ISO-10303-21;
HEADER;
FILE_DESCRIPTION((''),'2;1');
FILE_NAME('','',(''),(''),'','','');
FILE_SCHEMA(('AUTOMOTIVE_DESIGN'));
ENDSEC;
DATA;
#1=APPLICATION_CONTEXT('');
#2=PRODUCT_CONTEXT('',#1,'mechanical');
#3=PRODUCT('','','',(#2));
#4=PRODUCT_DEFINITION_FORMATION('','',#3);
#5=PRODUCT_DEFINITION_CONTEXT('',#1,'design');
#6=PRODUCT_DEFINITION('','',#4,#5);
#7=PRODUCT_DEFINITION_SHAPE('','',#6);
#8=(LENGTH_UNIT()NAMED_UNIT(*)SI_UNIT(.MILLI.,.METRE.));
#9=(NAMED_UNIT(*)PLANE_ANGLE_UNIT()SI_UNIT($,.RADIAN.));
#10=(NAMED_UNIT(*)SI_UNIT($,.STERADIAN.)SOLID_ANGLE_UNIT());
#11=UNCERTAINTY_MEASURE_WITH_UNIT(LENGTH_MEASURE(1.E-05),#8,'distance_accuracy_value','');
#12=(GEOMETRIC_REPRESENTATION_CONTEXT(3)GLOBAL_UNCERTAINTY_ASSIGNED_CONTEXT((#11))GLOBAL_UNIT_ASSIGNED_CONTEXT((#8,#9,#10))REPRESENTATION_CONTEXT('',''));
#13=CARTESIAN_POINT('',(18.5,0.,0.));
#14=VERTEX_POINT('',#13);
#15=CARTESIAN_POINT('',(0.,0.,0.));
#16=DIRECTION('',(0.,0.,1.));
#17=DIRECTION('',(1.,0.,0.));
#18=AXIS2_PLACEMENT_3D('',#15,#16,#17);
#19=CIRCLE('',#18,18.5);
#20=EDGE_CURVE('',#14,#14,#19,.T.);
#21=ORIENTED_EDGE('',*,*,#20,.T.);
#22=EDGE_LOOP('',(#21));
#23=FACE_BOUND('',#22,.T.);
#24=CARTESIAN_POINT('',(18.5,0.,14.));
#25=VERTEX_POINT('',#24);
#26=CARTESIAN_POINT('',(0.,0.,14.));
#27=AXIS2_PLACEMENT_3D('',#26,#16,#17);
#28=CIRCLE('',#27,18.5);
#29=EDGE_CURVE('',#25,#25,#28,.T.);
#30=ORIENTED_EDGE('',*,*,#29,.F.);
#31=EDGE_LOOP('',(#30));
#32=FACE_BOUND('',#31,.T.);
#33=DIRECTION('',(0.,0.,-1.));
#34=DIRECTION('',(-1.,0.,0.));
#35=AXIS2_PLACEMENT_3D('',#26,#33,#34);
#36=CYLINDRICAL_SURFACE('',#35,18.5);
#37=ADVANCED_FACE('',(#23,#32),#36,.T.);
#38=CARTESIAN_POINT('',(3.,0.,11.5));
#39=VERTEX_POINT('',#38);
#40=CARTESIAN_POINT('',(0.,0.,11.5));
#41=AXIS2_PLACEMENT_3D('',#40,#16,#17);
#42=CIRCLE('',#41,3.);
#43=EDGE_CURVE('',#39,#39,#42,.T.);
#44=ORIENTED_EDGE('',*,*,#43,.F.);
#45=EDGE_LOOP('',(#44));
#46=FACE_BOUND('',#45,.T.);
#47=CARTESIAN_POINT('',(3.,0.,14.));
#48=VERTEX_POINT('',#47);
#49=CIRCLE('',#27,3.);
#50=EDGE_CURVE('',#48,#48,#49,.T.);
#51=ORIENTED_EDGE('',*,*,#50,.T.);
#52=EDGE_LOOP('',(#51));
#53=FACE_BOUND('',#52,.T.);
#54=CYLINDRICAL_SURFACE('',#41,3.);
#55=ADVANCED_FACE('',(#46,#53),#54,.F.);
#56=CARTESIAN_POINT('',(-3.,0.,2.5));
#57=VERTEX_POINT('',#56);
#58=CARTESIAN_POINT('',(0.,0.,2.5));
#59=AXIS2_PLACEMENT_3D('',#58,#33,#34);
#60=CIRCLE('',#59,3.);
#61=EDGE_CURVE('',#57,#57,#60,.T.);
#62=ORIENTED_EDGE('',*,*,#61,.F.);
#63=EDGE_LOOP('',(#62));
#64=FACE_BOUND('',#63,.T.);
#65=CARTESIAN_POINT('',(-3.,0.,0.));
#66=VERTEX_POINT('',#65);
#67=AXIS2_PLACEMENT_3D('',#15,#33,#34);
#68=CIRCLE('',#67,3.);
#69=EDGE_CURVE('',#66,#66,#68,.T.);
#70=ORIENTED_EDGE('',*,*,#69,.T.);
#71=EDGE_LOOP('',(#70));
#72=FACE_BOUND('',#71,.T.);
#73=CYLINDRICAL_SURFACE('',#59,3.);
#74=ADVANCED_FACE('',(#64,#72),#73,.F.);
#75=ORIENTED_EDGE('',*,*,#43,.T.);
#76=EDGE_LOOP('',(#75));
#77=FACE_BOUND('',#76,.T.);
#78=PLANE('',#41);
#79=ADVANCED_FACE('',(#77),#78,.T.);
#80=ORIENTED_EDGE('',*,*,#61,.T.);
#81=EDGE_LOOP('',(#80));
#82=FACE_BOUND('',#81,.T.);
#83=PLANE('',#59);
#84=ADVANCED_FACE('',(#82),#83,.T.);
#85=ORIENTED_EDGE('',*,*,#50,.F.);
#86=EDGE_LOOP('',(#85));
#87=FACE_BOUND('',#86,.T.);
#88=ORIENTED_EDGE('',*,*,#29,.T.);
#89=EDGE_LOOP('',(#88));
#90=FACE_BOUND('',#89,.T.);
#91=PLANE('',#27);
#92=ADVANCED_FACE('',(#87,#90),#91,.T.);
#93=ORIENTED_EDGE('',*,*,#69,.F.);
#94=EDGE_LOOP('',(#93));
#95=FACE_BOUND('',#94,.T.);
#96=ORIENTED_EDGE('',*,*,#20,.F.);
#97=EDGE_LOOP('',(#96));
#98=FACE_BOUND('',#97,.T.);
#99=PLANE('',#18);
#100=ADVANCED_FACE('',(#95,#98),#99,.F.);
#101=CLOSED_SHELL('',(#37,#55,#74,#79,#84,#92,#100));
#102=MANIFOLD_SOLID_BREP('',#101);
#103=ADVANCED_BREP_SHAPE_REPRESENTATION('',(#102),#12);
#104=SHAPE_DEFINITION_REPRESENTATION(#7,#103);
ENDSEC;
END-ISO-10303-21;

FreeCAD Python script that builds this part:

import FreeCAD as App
import Part
import Sketcher

V = App.Vector

doc = App.newDocument("Part")
body = doc.addObject("PartDesign::Body", "Body")

# Sketch on XY plane
sketch1 = body.newObject("Sketcher::SketchObject", "Sketch")
sketch1.AttachmentSupport = (doc.getObject("XY_Plane"), [""])
sketch1.MapMode = "FlatFace"
sketch1.addGeometry(Part.Circle(V(0, 0, 0), V(0, 0, 1), 18), False)
sketch1.addConstraint([
    Sketcher.Constraint("Coincident", 0, 3, -1, 1),
    Sketcher.Constraint("Diameter", 0, 37.0),
])
pad1 = body.newObject("PartDesign::Pad", "Pad")
pad1.Profile = sketch1
pad1.Length = 14

# Sketch on XY plane
sketch2 = body.newObject("Sketcher::SketchObject", "Sketch001")
sketch2.AttachmentSupport = (doc.getObject("XY_Plane"), [""])
sketch2.MapMode = "FlatFace"
sketch2.addGeometry(Part.Circle(V(0, 0, 0), V(0, 0, 1), 3), False)
sketch2.addConstraint([
    Sketcher.Constraint("Coincident", 0, 3, -1, 1),
    Sketcher.Constraint("Diameter", 0, 6.0),
])
pocket1 = body.newObject("PartDesign::Pocket", "Pocket")
pocket1.Profile = sketch2
pocket1.Length = 2.5
pocket1.Reversed = True

# Sketch on XY plane
sketch3 = body.newObject("Sketcher::SketchObject", "Sketch002")
sketch3.AttachmentSupport = (doc.getObject("XY_Plane"), [""])
sketch3.MapMode = "FlatFace"
sketch3.AttachmentOffset = App.Placement(V(0, 0, 14), App.Rotation())
sketch3.addGeometry(Part.Circle(V(0, 0, 0), V(0, 0, 1), 3), False)
sketch3.addConstraint([
    Sketcher.Constraint("Coincident", 0, 3, -1, 1),
    Sketcher.Constraint("Diameter", 0, 6.0),
])
pocket2 = body.newObject("PartDesign::Pocket", "Pocket001")
pocket2.Profile = sketch3
pocket2.Length = 2.5

doc.recompute()
